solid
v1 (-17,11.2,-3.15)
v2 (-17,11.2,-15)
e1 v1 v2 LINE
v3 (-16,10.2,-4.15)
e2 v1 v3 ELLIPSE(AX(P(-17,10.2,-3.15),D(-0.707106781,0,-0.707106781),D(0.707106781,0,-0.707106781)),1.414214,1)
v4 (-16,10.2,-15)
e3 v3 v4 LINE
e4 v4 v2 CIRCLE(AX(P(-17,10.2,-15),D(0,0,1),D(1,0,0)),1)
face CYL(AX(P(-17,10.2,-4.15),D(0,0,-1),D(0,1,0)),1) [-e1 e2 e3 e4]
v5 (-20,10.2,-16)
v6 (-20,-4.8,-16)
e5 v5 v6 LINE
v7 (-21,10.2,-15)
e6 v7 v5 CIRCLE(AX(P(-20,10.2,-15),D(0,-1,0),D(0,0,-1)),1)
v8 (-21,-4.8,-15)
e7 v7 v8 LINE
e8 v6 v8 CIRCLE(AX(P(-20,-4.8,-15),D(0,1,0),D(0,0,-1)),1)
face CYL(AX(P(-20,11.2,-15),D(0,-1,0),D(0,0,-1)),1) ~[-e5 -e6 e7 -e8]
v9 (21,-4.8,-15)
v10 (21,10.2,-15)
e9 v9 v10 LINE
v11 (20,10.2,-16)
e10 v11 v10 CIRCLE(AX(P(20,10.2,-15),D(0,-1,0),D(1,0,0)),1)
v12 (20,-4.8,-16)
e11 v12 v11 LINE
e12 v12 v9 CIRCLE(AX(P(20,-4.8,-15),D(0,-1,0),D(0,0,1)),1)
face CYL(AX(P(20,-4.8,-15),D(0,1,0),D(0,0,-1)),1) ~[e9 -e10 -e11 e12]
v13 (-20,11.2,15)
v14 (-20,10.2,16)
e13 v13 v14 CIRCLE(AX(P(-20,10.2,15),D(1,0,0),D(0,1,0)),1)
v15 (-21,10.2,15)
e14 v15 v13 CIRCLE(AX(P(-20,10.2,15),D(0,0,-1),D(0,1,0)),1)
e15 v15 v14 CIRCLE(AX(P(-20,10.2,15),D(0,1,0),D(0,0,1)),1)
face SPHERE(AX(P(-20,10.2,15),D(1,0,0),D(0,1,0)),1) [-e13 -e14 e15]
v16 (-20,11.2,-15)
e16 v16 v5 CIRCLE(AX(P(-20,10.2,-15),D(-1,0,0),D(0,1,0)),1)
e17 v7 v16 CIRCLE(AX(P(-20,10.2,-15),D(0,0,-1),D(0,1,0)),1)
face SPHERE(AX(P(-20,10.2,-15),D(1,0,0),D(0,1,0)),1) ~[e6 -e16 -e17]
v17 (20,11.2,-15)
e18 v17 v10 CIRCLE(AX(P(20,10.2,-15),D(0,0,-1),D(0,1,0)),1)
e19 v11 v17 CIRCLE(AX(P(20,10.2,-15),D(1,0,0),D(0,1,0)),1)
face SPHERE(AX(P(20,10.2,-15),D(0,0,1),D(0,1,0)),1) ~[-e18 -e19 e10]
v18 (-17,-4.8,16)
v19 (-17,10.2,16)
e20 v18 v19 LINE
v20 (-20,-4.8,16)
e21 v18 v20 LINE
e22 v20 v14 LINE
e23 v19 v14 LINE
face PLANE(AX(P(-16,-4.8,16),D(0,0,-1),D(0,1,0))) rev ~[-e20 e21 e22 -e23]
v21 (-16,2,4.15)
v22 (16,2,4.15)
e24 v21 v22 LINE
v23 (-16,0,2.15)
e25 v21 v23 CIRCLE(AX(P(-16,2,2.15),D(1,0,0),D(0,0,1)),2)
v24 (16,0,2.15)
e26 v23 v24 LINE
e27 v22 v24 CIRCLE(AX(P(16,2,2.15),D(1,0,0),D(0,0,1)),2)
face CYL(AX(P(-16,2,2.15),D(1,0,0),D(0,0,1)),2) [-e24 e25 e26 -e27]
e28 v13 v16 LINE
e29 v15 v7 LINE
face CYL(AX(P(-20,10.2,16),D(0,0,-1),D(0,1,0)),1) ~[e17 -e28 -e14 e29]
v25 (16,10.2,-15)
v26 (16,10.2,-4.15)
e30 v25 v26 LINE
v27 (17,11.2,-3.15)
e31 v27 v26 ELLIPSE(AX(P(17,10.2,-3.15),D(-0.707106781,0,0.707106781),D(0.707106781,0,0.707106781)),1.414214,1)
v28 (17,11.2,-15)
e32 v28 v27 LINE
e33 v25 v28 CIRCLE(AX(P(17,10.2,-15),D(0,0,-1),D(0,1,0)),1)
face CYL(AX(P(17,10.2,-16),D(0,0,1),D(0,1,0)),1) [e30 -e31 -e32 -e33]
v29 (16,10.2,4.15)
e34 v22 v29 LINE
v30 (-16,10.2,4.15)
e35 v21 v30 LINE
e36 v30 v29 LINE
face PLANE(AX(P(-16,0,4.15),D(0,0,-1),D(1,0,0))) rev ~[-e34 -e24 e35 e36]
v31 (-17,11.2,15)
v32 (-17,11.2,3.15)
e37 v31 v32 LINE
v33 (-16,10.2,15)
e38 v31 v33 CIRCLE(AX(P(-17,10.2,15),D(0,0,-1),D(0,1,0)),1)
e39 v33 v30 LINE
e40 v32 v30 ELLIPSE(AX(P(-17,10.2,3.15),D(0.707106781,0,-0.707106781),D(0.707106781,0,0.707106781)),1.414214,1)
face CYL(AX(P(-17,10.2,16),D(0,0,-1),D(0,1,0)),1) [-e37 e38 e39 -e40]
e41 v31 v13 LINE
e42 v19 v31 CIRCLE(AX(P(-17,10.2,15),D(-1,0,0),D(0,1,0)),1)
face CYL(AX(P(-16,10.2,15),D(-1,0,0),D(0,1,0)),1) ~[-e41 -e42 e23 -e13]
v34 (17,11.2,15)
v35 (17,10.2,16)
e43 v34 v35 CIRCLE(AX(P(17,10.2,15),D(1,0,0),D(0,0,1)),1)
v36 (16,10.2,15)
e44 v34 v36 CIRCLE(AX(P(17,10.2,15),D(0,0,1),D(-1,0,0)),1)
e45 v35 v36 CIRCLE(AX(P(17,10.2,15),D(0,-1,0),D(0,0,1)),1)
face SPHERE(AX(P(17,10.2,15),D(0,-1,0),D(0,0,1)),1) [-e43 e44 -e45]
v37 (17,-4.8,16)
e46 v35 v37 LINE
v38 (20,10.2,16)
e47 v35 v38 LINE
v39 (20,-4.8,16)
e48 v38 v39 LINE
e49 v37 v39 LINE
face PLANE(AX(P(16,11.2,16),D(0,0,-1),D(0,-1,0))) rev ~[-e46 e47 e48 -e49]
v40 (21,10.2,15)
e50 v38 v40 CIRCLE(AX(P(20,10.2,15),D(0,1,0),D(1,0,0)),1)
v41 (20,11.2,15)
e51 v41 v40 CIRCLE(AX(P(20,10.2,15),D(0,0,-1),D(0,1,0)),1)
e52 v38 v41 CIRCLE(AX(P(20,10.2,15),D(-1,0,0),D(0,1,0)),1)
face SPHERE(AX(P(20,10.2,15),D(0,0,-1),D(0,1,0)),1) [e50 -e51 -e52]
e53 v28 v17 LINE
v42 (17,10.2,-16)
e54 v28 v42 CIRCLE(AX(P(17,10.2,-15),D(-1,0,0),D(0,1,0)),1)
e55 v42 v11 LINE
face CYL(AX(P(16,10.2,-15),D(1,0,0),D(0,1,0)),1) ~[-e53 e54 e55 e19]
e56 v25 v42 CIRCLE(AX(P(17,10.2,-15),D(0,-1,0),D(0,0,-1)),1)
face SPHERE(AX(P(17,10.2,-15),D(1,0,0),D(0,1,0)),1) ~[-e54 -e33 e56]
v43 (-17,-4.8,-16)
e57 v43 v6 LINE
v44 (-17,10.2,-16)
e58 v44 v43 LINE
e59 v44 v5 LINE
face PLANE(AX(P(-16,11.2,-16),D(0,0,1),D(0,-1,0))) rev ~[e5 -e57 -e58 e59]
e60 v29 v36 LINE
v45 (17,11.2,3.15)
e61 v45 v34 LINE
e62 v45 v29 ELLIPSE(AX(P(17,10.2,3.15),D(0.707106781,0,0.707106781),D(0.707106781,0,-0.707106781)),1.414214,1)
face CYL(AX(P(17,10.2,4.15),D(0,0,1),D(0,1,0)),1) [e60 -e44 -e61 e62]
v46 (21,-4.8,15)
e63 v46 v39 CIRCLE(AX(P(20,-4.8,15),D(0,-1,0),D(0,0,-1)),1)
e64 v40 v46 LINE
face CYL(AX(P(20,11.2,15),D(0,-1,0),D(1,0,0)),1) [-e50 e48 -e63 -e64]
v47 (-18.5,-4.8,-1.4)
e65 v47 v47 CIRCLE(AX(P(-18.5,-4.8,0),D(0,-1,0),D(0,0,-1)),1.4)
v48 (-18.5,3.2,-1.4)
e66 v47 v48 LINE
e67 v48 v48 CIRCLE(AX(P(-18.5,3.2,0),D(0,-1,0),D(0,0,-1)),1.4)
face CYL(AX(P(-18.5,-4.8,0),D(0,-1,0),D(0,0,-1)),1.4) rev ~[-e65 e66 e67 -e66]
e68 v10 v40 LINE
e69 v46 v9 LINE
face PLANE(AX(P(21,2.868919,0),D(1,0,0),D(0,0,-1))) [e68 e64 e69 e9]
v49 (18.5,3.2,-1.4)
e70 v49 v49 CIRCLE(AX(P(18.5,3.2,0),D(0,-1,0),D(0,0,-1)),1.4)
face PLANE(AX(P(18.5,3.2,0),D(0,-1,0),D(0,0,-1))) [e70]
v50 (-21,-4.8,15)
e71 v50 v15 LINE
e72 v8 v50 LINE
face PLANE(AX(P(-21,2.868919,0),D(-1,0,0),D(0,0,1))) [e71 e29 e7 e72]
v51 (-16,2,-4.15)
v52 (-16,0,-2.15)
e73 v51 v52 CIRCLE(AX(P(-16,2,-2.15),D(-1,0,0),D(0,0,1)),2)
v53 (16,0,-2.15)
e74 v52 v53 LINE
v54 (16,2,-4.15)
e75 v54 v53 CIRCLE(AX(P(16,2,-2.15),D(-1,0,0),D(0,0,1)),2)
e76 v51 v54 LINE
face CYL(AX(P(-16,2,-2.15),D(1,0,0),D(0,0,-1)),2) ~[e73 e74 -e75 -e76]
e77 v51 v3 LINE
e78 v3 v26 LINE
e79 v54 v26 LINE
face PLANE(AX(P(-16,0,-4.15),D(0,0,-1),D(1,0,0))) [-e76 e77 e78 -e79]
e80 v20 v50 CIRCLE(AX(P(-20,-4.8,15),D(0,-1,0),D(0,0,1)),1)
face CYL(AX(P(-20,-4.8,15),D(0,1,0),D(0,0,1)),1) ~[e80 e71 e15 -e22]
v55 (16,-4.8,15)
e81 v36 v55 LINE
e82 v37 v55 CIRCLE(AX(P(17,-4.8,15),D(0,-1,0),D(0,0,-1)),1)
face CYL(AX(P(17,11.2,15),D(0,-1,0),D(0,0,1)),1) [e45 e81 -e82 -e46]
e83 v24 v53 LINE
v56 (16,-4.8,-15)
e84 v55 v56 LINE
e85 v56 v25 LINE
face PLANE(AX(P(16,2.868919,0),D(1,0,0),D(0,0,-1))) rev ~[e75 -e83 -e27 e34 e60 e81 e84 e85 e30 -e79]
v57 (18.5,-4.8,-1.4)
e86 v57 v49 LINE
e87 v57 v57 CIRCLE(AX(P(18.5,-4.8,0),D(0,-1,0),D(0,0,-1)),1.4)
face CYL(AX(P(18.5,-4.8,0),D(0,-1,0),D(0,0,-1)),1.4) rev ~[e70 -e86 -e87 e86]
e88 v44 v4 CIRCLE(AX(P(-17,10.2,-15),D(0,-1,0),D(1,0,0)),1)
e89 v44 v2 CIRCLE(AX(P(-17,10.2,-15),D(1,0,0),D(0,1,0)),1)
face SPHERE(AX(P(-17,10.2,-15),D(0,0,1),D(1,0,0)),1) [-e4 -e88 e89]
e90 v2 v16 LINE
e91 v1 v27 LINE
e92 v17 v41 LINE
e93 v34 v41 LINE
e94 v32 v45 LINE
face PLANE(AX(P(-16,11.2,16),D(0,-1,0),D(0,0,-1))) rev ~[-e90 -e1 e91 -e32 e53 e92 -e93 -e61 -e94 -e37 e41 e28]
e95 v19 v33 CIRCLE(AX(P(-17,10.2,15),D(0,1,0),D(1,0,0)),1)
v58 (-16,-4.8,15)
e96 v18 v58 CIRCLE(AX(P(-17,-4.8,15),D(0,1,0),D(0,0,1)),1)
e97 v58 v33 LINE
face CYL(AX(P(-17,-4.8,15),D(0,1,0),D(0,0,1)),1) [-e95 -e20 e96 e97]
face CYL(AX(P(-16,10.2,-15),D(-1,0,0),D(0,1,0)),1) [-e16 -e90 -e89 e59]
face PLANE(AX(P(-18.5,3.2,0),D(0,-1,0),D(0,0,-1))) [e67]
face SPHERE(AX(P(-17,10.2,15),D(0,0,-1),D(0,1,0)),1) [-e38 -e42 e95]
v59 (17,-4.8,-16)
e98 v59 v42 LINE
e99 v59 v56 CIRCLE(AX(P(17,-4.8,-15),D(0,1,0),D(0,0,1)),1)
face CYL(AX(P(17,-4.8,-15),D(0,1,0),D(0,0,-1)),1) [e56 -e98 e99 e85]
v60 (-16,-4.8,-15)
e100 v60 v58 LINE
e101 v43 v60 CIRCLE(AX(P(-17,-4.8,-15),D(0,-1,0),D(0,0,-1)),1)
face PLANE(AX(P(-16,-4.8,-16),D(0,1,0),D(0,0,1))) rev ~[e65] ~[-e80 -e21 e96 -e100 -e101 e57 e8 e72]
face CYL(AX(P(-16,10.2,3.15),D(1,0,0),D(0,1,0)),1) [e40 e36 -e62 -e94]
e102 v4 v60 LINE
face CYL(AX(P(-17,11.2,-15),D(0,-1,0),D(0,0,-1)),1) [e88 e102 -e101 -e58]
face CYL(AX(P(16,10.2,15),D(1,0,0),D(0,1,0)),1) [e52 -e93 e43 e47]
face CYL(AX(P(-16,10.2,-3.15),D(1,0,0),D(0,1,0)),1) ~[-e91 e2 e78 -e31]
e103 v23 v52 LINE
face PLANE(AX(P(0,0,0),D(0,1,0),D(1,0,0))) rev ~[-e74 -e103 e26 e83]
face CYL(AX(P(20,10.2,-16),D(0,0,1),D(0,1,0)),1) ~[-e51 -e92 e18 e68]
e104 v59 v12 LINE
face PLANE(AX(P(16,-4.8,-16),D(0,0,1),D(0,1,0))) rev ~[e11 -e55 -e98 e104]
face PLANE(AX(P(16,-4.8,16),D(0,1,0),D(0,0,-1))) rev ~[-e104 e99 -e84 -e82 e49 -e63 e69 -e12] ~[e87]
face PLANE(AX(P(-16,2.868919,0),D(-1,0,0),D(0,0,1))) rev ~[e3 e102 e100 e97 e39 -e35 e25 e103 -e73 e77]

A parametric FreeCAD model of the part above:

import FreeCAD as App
import Part
import Sketcher

V = App.Vector


def edges_at(feature, points):
    """Names of the edges that pass closest to the given points."""
    edges = feature.Shape.Edges
    near = lambda p: min(range(len(edges)), key=lambda i: edges[i].distToShape(Part.Vertex(*p))[0])
    return sorted({f"Edge{near(p) + 1}" for p in points})


def add_polygon(sketch, points):
    """Adds a closed chain of lines whose ends are joined by coincident constraints."""
    first, n = sketch.GeometryCount, len(points)
    for a, b in zip(points, points[1:] + points[:1]):
        sketch.addGeometry(Part.LineSegment(App.Vector(*a, 0), App.Vector(*b, 0)), False)
    for i in range(n):
        sketch.addConstraint(Sketcher.Constraint("Coincident", first + i, 2, first + (i + 1) % n, 1))

doc = App.newDocument("Part")
body = doc.addObject("PartDesign::Body", "Body")

# Sketch on XZ plane
sketch1 = doc.addObject("Sketcher::SketchObject", "Sketch")
body.addObject(sketch1)
sketch1.AttachmentSupport = (doc.XZ_Plane, [""])
sketch1.MapMode = "FlatFace"
add_polygon(sketch1, [(-16, -4), (-16, 4), (16, 4), (16, -4)])  # lines 0-3
sketch1.addConstraint(Sketcher.Constraint("Vertical", 0))
sketch1.addConstraint(Sketcher.Constraint("Horizontal", 1))
sketch1.addConstraint(Sketcher.Constraint("Vertical", 2))
sketch1.addConstraint(Sketcher.Constraint("Horizontal", 3))
sketch1.addConstraint(Sketcher.Constraint("Symmetric", 0, 2, 2, 2, -1, 1))
sketch1.addConstraint(Sketcher.Constraint("DistanceX", 1, 1, 1, 2, 32.0))
sketch1.addConstraint(Sketcher.Constraint("DistanceY", 0, 1, 0, 2, 8.3))
pad1 = doc.addObject("PartDesign::Pad", "Pad")
body.addObject(pad1)
pad1.Profile = sketch1
pad1.Length = 11.2
pad1.Reversed = True

# Sketch on YZ plane
sketch2 = doc.addObject("Sketcher::SketchObject", "Sketch001")
body.addObject(sketch2)
sketch2.AttachmentSupport = (doc.YZ_Plane, [""])
sketch2.MapMode = "FlatFace"
sketch2.AttachmentOffset = App.Placement(V(0, 0, 16), App.Rotation())
add_polygon(sketch2, [(11, 16), (-5, 16), (-5, -16), (11, -16)])  # lines 0-3
sketch2.addConstraint(Sketcher.Constraint("Horizontal", 0))
sketch2.addConstraint(Sketcher.Constraint("Vertical", 1))
sketch2.addConstraint(Sketcher.Constraint("Horizontal", 2))
sketch2.addConstraint(Sketcher.Constraint("Vertical", 3))
sketch2.addConstraint(Sketcher.Constraint("DistanceX", 0, 2, 0, 1, 16.0))
sketch2.addConstraint(Sketcher.Constraint("DistanceY", 1, 2, 1, 1, 32.0))
sketch2.addConstraint(Sketcher.Constraint("DistanceY", -1, 1, 0, 2, 16.0))
sketch2.addConstraint(Sketcher.Constraint("DistanceX", 0, 2, -1, 1, 4.8))
pad2 = doc.addObject("PartDesign::Pad", "Pad001")
body.addObject(pad2)
pad2.Profile = sketch2
pad2.Length = 5

# Sketch on YZ plane
sketch3 = doc.addObject("Sketcher::SketchObject", "Sketch002")
body.addObject(sketch3)
sketch3.AttachmentSupport = (doc.YZ_Plane, [""])
sketch3.MapMode = "FlatFace"
sketch3.AttachmentOffset = App.Placement(V(0, 0, -16), App.Rotation())
add_polygon(sketch3, [(11, 16), (11, -16), (-5, -16), (-5, 16)])  # lines 0-3
sketch3.addConstraint(Sketcher.Constraint("Vertical", 0))
sketch3.addConstraint(Sketcher.Constraint("Horizontal", 1))
sketch3.addConstraint(Sketcher.Constraint("Vertical", 2))
sketch3.addConstraint(Sketcher.Constraint("Horizontal", 3))
sketch3.addConstraint(Sketcher.Constraint("DistanceX", 1, 2, 1, 1, 16.0))
sketch3.addConstraint(Sketcher.Constraint("DistanceY", 0, 2, 0, 1, 32.0))
sketch3.addConstraint(Sketcher.Constraint("DistanceY", 0, 2, -1, 1, 16.0))
sketch3.addConstraint(Sketcher.Constraint("DistanceX", -1, 1, 0, 2, 11.2))
pad3 = doc.addObject("PartDesign::Pad", "Pad002")
body.addObject(pad3)
pad3.Profile = sketch3
pad3.Length = 5
pad3.Reversed = True
doc.recompute()

fillet = doc.addObject("PartDesign::Fillet", "Fillet")
body.addObject(fillet)
fillet.Base = (pad3, edges_at(pad3, [
    (21, 11.2, 0),
    (18.5, 11.2, -16),
    (16, 3.2, 16),
    (18.5, 11.2, 16),
    (21, 3.2, -16),
    (21, 3.2, 16),
    (16, 11.2, -10.075),
    (0, 11.2, 4.15),
    (16, 3.2, -16),
    (16, 11.2, 10.075),
    (-16, 11.2, 10.075),
    (-16, 11.2, -10.075),
    (-18.5, 11.2, 16),
    (-16, 3.2, -16),
    (-18.5, 11.2, -16),
    (-16, 3.2, 16),
    (-21, 11.2, 0),
    (-21, 3.2, -16),
    (-21, 3.2, 16),
    (0, 11.2, -4.15),
]))
fillet.Radius = 1
doc.recompute()

fillet2 = doc.addObject("PartDesign::Fillet", "Fillet001")
body.addObject(fillet2)
fillet2.Base = (fillet, edges_at(fillet, [(0, 0, 4.15), (0, 0, -4.15)]))
fillet2.Radius = 2

# Sketch on XZ plane
sketch4 = doc.addObject("Sketcher::SketchObject", "Sketch003")
body.addObject(sketch4)
sketch4.AttachmentSupport = (doc.XZ_Plane, [""])
sketch4.MapMode = "FlatFace"
sketch4.AttachmentOffset = App.Placement(V(0, 0, 4.8), App.Rotation())
sketch4.addGeometry(Part.Circle(V(-18.5, 0, 0), V(0, 0, 1), 1.4), False)
sketch4.addGeometry(Part.Circle(V(18.5, 0, 0), V(0, 0, 1), 1.4), False)
sketch4.addConstraint(Sketcher.Constraint("Equal", 0, 1))
sketch4.addConstraint(Sketcher.Constraint("Symmetric", 0, 3, 1, 3, -1, 1))
sketch4.addConstraint(Sketcher.Constraint("PointOnObject", 0, 3, -1))
sketch4.addConstraint(Sketcher.Constraint("Diameter", 0, 2.8))
sketch4.addConstraint(Sketcher.Constraint("DistanceX", 0, 3, 1, 3, 37.0))
pocket1 = doc.addObject("PartDesign::Pocket", "Pocket")
body.addObject(pocket1)
pocket1.Profile = sketch4
pocket1.Length = 8

doc.recompute()
